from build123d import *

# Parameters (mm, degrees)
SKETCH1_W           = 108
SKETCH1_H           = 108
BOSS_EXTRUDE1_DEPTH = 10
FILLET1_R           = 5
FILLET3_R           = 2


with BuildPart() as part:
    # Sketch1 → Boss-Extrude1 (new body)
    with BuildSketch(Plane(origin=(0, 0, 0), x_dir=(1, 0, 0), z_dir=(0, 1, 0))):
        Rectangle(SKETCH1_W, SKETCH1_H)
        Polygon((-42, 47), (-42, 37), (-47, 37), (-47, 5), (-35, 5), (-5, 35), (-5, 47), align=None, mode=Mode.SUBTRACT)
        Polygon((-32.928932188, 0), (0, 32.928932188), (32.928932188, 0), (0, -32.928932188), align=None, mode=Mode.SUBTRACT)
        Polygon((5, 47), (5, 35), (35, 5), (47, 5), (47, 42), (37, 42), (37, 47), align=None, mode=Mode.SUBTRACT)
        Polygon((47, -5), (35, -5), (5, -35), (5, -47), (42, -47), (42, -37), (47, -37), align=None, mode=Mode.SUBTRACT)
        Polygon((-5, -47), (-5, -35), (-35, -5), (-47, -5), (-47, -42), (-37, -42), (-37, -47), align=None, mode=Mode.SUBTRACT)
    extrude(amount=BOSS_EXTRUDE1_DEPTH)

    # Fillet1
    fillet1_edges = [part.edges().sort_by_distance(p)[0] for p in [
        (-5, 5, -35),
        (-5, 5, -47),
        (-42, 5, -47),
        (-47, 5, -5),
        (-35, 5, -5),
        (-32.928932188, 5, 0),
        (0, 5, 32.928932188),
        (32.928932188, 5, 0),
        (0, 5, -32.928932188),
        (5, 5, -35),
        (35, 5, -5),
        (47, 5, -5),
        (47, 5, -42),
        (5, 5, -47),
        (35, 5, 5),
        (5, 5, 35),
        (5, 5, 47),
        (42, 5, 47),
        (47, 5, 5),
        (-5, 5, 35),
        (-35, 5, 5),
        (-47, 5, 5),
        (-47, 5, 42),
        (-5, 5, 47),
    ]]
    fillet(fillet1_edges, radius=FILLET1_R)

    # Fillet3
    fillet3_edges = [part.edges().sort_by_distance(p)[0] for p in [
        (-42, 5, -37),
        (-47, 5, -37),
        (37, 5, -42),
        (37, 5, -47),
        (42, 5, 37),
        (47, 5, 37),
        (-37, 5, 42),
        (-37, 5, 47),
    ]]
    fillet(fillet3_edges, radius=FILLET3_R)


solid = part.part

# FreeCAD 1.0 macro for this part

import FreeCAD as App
import Part
import Sketcher

V = App.Vector
Q = App.Units.Quantity


def edges_at(feature, points):
    """Names of the edges that pass closest to the given points."""
    edges = feature.Shape.Edges
    near = lambda p: min(range(len(edges)), key=lambda i: edges[i].distToShape(Part.Vertex(*p))[0])
    return sorted({f"Edge{near(p) + 1}" for p in points})

doc = App.newDocument("Part")
body = doc.addObject("PartDesign::Body", "Body")

# Sketch on XZ plane
sketch1 = body.newObject("Sketcher::SketchObject", "Sketch")
sketch1.AttachmentSupport = (doc.getObject("XZ_Plane"), [""])
sketch1.MapMode = "FlatFace"
sketch1.addGeometry([
    Part.LineSegment(V(-54, -54, 0), V(-54, 54, 0)),  # 0
    Part.LineSegment(V(-54, 54, 0), V(54, 54, 0)),  # 1
    Part.LineSegment(V(54, 54, 0), V(54, -54, 0)),  # 2
    Part.LineSegment(V(54, -54, 0), V(-54, -54, 0)),  # 3
    Part.LineSegment(V(-5, 35, 0), V(-5, 47, 0)),  # 4
    Part.LineSegment(V(-5, 47, 0), V(-37, 47, 0)),  # 5
    Part.LineSegment(V(-37, 47, 0), V(-37, 42, 0)),  # 6
    Part.LineSegment(V(-37, 42, 0), V(-47, 42, 0)),  # 7
    Part.LineSegment(V(-47, 42, 0), V(-47, 5, 0)),  # 8
    Part.LineSegment(V(-47, 5, 0), V(-35, 5, 0)),  # 9
    Part.LineSegment(V(-35, 5, 0), V(-5, 35, 0)),  # 10
    Part.LineSegment(V(35, 5, 0), V(47, 5, 0)),  # 11
    Part.LineSegment(V(47, 5, 0), V(47, 37, 0)),  # 12
    Part.LineSegment(V(47, 37, 0), V(42, 37, 0)),  # 13
    Part.LineSegment(V(42, 37, 0), V(42, 47, 0)),  # 14
    Part.LineSegment(V(42, 47, 0), V(5, 47, 0)),  # 15
    Part.LineSegment(V(5, 47, 0), V(5, 35, 0)),  # 16
    Part.LineSegment(V(5, 35, 0), V(35, 5, 0)),  # 17
    Part.LineSegment(V(-42, -37, 0), V(-42, -47, 0)),  # 18
    Part.LineSegment(V(-42, -47, 0), V(-5, -47, 0)),  # 19
    Part.LineSegment(V(-5, -47, 0), V(-5, -35, 0)),  # 20
    Part.LineSegment(V(-5, -35, 0), V(-35, -5, 0)),  # 21
    Part.LineSegment(V(-35, -5, 0), V(-47, -5, 0)),  # 22
    Part.LineSegment(V(-47, -5, 0), V(-47, -37, 0)),  # 23
    Part.LineSegment(V(-47, -37, 0), V(-42, -37, 0)),  # 24
    Part.LineSegment(V(0, 33, 0), V(-33, 0, 0)),  # 25
    Part.LineSegment(V(-33, 0, 0), V(0, -33, 0)),  # 26
    Part.LineSegment(V(0, -33, 0), V(33, 0, 0)),  # 27
    Part.LineSegment(V(33, 0, 0), V(0, 33, 0)),  # 28
    Part.LineSegment(V(5, -35, 0), V(5, -47, 0)),  # 29
    Part.LineSegment(V(5, -47, 0), V(37, -47, 0)),  # 30
    Part.LineSegment(V(37, -47, 0), V(37, -42, 0)),  # 31
    Part.LineSegment(V(37, -42, 0), V(47, -42, 0)),  # 32
    Part.LineSegment(V(47, -42, 0), V(47, -5, 0)),  # 33
    Part.LineSegment(V(47, -5, 0), V(35, -5, 0)),  # 34
    Part.LineSegment(V(35, -5, 0), V(5, -35, 0)),  # 35
], False)
sketch1.addConstraint([
    Sketcher.Constraint("Coincident", 0, 2, 1, 1),
    Sketcher.Constraint("Coincident", 1, 2, 2, 1),
    Sketcher.Constraint("Coincident", 2, 2, 3, 1),
    Sketcher.Constraint("Coincident", 3, 2, 0, 1),
    Sketcher.Constraint("Coincident", 4, 2, 5, 1),
    Sketcher.Constraint("Coincident", 5, 2, 6, 1),
    Sketcher.Constraint("Coincident", 6, 2, 7, 1),
    Sketcher.Constraint("Coincident", 7, 2, 8, 1),
    Sketcher.Constraint("Coincident", 8, 2, 9, 1),
    Sketcher.Constraint("Coincident", 9, 2, 10, 1),
    Sketcher.Constraint("Coincident", 10, 2, 4, 1),
    Sketcher.Constraint("Coincident", 11, 2, 12, 1),
    Sketcher.Constraint("Coincident", 12, 2, 13, 1),
    Sketcher.Constraint("Coincident", 13, 2, 14, 1),
    Sketcher.Constraint("Coincident", 14, 2, 15, 1),
    Sketcher.Constraint("Coincident", 15, 2, 16, 1),
    Sketcher.Constraint("Coincident", 16, 2, 17, 1),
    Sketcher.Constraint("Coincident", 17, 2, 11, 1),
    Sketcher.Constraint("Coincident", 18, 2, 19, 1),
    Sketcher.Constraint("Coincident", 19, 2, 20, 1),
    Sketcher.Constraint("Coincident", 20, 2, 21, 1),
    Sketcher.Constraint("Coincident", 21, 2, 22, 1),
    Sketcher.Constraint("Coincident", 22, 2, 23, 1),
    Sketcher.Constraint("Coincident", 23, 2, 24, 1),
    Sketcher.Constraint("Coincident", 24, 2, 18, 1),
    Sketcher.Constraint("Coincident", 25, 2, 26, 1),
    Sketcher.Constraint("Coincident", 26, 2, 27, 1),
    Sketcher.Constraint("Coincident", 27, 2, 28, 1),
    Sketcher.Constraint("Coincident", 28, 2, 25, 1),
    Sketcher.Constraint("Coincident", 29, 2, 30, 1),
    Sketcher.Constraint("Coincident", 30, 2, 31, 1),
    Sketcher.Constraint("Coincident", 31, 2, 32, 1),
    Sketcher.Constraint("Coincident", 32, 2, 33, 1),
    Sketcher.Constraint("Coincident", 33, 2, 34, 1),
    Sketcher.Constraint("Coincident", 34, 2, 35, 1),
    Sketcher.Constraint("Coincident", 35, 2, 29, 1),
    Sketcher.Constraint("Vertical", 0),
    Sketcher.Constraint("Horizontal", 1),
    Sketcher.Constraint("Vertical", 2),
    Sketcher.Constraint("Horizontal", 3),
    Sketcher.Constraint("Vertical", 4),
    Sketcher.Constraint("Horizontal", 5),
    Sketcher.Constraint("Vertical", 6),
    Sketcher.Constraint("Horizontal", 7),
    Sketcher.Constraint("Vertical", 8),
    Sketcher.Constraint("Horizontal", 9),
    Sketcher.Constraint("Horizontal", 11),
    Sketcher.Constraint("Vertical", 12),
    Sketcher.Constraint("Horizontal", 13),
    Sketcher.Constraint("Vertical", 14),
    Sketcher.Constraint("Horizontal", 15),
    Sketcher.Constraint("Vertical", 16),
    Sketcher.Constraint("Vertical", 18),
    Sketcher.Constraint("Horizontal", 19),
    Sketcher.Constraint("Vertical", 20),
    Sketcher.Constraint("Horizontal", 22),
    Sketcher.Constraint("Vertical", 23),
    Sketcher.Constraint("Horizontal", 24),
    Sketcher.Constraint("Vertical", 29),
    Sketcher.Constraint("Horizontal", 30),
    Sketcher.Constraint("Vertical", 31),
    Sketcher.Constraint("Horizontal", 32),
    Sketcher.Constraint("Vertical", 33),
    Sketcher.Constraint("Horizontal", 34),
    Sketcher.Constraint("Symmetric", 0, 2, 2, 2, -1, 1),
    Sketcher.Constraint("Symmetric", 14, 2, 18, 2, -1, 1),
    Sketcher.Constraint("Symmetric", 16, 2, 20, 2, -1, 1),
    Sketcher.Constraint("Symmetric", 17, 2, 21, 2, -1, 1),
    Sketcher.Constraint("Symmetric", 12, 2, 23, 2, -1, 1),
    Sketcher.Constraint("Symmetric", 25, 2, 27, 2, -1, 1),
    Sketcher.Constraint("Symmetric", 26, 2, 28, 2, -1, 1),
    Sketcher.Constraint("Symmetric", 4, 2, 29, 2, -1, 1),
    Sketcher.Constraint("Symmetric", 6, 2, 31, 2, -1, 1),
    Sketcher.Constraint("Symmetric", 8, 2, 33, 2, -1, 1),
    Sketcher.Constraint("Symmetric", 8, 2, 11, 2, -2),
    Sketcher.Constraint("Symmetric", 4, 2, 15, 2, -2),
    Sketcher.Constraint("PointOnObject", 25, 2, -1),
    Sketcher.Constraint("PointOnObject", 26, 2, -2),
    Sketcher.Constraint("Perpendicular", 10, 17),
    Sketcher.Constraint("Perpendicular", 21, 25),
    Sketcher.Constraint("Perpendicular", 25, 26),
    Sketcher.Constraint("Perpendicular", 28, 35),
    Sketcher.Constraint("Horizontal", 10, 2, 16, 2),
    Sketcher.Constraint("Horizontal", 20, 2, 35, 2),
    Sketcher.Constraint("Equal", 3, 0),
    Sketcher.Constraint("Equal", 34, 4),
    Sketcher.Constraint("Equal", 24, 6),
    Sketcher.Constraint("Equal", 30, 12),
    Sketcher.Constraint("DistanceX", 1, 1, 1, 2, Q("108 mm")),
    Sketcher.Constraint("DistanceX", 5, 2, 5, 1, Q("32 mm")),
    Sketcher.Constraint("DistanceX", 7, 2, 7, 1, Q("10 mm")),
    Sketcher.Constraint("DistanceX", 9, 1, 9, 2, Q("12 mm")),
    Sketcher.Constraint("DistanceX", 13, 2, 13, 1, Q("5 mm")),
    Sketcher.Constraint("DistanceX", 4, 2, -1, 1, Q("5 mm")),
    Sketcher.Constraint("DistanceY", -1, 1, 4, 2, Q("47 mm")),
    Sketcher.Constraint("Distance", 25, Q("46.568542 mm")),
])
pad1 = body.newObject("PartDesign::Pad", "Pad")
pad1.Profile = sketch1
pad1.Length = 10
pad1.Reversed = True
doc.recompute()

fillet = body.newObject("PartDesign::Fillet", "Fillet")
fillet.Base = (pad1, edges_at(pad1, [
    (-5, 5, -35),
    (-5, 5, -47),
    (-42, 5, -47),
    (-47, 5, -5),
    (-35, 5, -5),
    (-32.929, 5, 0),
    (0, 5, 32.929),
    (32.929, 5, 0),
    (0, 5, -32.929),
    (5, 5, -35),
    (35, 5, -5),
    (47, 5, -5),
    (47, 5, -42),
    (5, 5, -47),
    (35, 5, 5),
    (5, 5, 35),
    (5, 5, 47),
    (42, 5, 47),
    (47, 5, 5),
    (-5, 5, 35),
    (-35, 5, 5),
    (-47, 5, 5),
    (-47, 5, 42),
    (-5, 5, 47),
]))
fillet.Radius = 5
doc.recompute()

fillet2 = body.newObject("PartDesign::Fillet", "Fillet001")
fillet2.Base = (fillet, edges_at(fillet, [
    (-42, 5, -37),
    (-47, 5, -37),
    (37, 5, -42),
    (37, 5, -47),
    (42, 5, 37),
    (47, 5, 37),
    (-37, 5, 42),
    (-37, 5, 47),
]))
fillet2.Radius = 2

doc.recompute()
